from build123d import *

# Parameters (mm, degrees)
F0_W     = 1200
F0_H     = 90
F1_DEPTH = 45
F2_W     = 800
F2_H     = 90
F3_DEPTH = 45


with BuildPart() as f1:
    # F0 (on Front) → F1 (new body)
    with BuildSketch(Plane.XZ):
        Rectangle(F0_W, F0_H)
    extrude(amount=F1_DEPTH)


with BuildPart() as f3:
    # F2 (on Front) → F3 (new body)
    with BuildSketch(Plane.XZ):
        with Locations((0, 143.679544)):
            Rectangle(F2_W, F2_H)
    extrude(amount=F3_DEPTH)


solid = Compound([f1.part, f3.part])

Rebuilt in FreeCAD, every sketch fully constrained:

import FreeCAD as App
import Part
import Sketcher
from FreeCAD import Vector


def add_polygon(sketch, points):
    """Adds a closed chain of lines whose ends are joined by coincident constraints."""
    first, n = sketch.GeometryCount, len(points)
    for a, b in zip(points, points[1:] + points[:1]):
        sketch.addGeometry(Part.LineSegment(App.Vector(*a, 0), App.Vector(*b, 0)), False)
    for i in range(n):
        sketch.addConstraint(Sketcher.Constraint("Coincident", first + i, 2, first + (i + 1) % n, 1))

doc = App.newDocument("Part")
body = doc.addObject("PartDesign::Body", "Body")

# Sketch on XZ plane
sketch1 = body.newObject("Sketcher::SketchObject", "Sketch")
sketch1.AttachmentSupport = (doc.getObject("XZ_Plane"), [""])
sketch1.MapMode = "FlatFace"
add_polygon(sketch1, [(-600, 45), (-600, -45), (600, -45), (600, 45)])  # lines 0-3
sketch1.addConstraint([
    Sketcher.Constraint("Vertical", 0),
    Sketcher.Constraint("Horizontal", 1),
    Sketcher.Constraint("Vertical", 2),
    Sketcher.Constraint("Horizontal", 3),
    Sketcher.Constraint("Symmetric", 0, 2, 2, 2, -1, 1),
    Sketcher.Constraint("DistanceX", 1, 1, 1, 2, 1200.0),
    Sketcher.Constraint("DistanceY", 0, 2, 0, 1, 90.0),
])
pad1 = body.newObject("PartDesign::Pad", "Pad")
pad1.Profile = sketch1
pad1.Length = 45
body2 = doc.addObject("PartDesign::Body", "Body001")

# Sketch on XZ plane
sketch2 = body2.newObject("Sketcher::SketchObject", "Sketch001")
sketch2.AttachmentSupport = (doc.getObject("XZ_Plane001"), [""])
sketch2.MapMode = "FlatFace"
add_polygon(sketch2, [(-400, 189), (-400, 99), (400, 99), (400, 189)])  # lines 0-3
sketch2.addConstraint([
    Sketcher.Constraint("Vertical", 0),
    Sketcher.Constraint("Horizontal", 1),
    Sketcher.Constraint("Vertical", 2),
    Sketcher.Constraint("Horizontal", 3),
    Sketcher.Constraint("DistanceX", 1, 1, 1, 2, 800.0),
    Sketcher.Constraint("DistanceY", 0, 2, 0, 1, 90.0),
    Sketcher.Constraint("DistanceX", 0, 2, -1, 1, 400.0),
    Sketcher.Constraint("DistanceY", -1, 1, 0, 2, 98.679544),
])
pad2 = body2.newObject("PartDesign::Pad", "Pad001")
pad2.Profile = sketch2
pad2.Length = 45

doc.recompute()
